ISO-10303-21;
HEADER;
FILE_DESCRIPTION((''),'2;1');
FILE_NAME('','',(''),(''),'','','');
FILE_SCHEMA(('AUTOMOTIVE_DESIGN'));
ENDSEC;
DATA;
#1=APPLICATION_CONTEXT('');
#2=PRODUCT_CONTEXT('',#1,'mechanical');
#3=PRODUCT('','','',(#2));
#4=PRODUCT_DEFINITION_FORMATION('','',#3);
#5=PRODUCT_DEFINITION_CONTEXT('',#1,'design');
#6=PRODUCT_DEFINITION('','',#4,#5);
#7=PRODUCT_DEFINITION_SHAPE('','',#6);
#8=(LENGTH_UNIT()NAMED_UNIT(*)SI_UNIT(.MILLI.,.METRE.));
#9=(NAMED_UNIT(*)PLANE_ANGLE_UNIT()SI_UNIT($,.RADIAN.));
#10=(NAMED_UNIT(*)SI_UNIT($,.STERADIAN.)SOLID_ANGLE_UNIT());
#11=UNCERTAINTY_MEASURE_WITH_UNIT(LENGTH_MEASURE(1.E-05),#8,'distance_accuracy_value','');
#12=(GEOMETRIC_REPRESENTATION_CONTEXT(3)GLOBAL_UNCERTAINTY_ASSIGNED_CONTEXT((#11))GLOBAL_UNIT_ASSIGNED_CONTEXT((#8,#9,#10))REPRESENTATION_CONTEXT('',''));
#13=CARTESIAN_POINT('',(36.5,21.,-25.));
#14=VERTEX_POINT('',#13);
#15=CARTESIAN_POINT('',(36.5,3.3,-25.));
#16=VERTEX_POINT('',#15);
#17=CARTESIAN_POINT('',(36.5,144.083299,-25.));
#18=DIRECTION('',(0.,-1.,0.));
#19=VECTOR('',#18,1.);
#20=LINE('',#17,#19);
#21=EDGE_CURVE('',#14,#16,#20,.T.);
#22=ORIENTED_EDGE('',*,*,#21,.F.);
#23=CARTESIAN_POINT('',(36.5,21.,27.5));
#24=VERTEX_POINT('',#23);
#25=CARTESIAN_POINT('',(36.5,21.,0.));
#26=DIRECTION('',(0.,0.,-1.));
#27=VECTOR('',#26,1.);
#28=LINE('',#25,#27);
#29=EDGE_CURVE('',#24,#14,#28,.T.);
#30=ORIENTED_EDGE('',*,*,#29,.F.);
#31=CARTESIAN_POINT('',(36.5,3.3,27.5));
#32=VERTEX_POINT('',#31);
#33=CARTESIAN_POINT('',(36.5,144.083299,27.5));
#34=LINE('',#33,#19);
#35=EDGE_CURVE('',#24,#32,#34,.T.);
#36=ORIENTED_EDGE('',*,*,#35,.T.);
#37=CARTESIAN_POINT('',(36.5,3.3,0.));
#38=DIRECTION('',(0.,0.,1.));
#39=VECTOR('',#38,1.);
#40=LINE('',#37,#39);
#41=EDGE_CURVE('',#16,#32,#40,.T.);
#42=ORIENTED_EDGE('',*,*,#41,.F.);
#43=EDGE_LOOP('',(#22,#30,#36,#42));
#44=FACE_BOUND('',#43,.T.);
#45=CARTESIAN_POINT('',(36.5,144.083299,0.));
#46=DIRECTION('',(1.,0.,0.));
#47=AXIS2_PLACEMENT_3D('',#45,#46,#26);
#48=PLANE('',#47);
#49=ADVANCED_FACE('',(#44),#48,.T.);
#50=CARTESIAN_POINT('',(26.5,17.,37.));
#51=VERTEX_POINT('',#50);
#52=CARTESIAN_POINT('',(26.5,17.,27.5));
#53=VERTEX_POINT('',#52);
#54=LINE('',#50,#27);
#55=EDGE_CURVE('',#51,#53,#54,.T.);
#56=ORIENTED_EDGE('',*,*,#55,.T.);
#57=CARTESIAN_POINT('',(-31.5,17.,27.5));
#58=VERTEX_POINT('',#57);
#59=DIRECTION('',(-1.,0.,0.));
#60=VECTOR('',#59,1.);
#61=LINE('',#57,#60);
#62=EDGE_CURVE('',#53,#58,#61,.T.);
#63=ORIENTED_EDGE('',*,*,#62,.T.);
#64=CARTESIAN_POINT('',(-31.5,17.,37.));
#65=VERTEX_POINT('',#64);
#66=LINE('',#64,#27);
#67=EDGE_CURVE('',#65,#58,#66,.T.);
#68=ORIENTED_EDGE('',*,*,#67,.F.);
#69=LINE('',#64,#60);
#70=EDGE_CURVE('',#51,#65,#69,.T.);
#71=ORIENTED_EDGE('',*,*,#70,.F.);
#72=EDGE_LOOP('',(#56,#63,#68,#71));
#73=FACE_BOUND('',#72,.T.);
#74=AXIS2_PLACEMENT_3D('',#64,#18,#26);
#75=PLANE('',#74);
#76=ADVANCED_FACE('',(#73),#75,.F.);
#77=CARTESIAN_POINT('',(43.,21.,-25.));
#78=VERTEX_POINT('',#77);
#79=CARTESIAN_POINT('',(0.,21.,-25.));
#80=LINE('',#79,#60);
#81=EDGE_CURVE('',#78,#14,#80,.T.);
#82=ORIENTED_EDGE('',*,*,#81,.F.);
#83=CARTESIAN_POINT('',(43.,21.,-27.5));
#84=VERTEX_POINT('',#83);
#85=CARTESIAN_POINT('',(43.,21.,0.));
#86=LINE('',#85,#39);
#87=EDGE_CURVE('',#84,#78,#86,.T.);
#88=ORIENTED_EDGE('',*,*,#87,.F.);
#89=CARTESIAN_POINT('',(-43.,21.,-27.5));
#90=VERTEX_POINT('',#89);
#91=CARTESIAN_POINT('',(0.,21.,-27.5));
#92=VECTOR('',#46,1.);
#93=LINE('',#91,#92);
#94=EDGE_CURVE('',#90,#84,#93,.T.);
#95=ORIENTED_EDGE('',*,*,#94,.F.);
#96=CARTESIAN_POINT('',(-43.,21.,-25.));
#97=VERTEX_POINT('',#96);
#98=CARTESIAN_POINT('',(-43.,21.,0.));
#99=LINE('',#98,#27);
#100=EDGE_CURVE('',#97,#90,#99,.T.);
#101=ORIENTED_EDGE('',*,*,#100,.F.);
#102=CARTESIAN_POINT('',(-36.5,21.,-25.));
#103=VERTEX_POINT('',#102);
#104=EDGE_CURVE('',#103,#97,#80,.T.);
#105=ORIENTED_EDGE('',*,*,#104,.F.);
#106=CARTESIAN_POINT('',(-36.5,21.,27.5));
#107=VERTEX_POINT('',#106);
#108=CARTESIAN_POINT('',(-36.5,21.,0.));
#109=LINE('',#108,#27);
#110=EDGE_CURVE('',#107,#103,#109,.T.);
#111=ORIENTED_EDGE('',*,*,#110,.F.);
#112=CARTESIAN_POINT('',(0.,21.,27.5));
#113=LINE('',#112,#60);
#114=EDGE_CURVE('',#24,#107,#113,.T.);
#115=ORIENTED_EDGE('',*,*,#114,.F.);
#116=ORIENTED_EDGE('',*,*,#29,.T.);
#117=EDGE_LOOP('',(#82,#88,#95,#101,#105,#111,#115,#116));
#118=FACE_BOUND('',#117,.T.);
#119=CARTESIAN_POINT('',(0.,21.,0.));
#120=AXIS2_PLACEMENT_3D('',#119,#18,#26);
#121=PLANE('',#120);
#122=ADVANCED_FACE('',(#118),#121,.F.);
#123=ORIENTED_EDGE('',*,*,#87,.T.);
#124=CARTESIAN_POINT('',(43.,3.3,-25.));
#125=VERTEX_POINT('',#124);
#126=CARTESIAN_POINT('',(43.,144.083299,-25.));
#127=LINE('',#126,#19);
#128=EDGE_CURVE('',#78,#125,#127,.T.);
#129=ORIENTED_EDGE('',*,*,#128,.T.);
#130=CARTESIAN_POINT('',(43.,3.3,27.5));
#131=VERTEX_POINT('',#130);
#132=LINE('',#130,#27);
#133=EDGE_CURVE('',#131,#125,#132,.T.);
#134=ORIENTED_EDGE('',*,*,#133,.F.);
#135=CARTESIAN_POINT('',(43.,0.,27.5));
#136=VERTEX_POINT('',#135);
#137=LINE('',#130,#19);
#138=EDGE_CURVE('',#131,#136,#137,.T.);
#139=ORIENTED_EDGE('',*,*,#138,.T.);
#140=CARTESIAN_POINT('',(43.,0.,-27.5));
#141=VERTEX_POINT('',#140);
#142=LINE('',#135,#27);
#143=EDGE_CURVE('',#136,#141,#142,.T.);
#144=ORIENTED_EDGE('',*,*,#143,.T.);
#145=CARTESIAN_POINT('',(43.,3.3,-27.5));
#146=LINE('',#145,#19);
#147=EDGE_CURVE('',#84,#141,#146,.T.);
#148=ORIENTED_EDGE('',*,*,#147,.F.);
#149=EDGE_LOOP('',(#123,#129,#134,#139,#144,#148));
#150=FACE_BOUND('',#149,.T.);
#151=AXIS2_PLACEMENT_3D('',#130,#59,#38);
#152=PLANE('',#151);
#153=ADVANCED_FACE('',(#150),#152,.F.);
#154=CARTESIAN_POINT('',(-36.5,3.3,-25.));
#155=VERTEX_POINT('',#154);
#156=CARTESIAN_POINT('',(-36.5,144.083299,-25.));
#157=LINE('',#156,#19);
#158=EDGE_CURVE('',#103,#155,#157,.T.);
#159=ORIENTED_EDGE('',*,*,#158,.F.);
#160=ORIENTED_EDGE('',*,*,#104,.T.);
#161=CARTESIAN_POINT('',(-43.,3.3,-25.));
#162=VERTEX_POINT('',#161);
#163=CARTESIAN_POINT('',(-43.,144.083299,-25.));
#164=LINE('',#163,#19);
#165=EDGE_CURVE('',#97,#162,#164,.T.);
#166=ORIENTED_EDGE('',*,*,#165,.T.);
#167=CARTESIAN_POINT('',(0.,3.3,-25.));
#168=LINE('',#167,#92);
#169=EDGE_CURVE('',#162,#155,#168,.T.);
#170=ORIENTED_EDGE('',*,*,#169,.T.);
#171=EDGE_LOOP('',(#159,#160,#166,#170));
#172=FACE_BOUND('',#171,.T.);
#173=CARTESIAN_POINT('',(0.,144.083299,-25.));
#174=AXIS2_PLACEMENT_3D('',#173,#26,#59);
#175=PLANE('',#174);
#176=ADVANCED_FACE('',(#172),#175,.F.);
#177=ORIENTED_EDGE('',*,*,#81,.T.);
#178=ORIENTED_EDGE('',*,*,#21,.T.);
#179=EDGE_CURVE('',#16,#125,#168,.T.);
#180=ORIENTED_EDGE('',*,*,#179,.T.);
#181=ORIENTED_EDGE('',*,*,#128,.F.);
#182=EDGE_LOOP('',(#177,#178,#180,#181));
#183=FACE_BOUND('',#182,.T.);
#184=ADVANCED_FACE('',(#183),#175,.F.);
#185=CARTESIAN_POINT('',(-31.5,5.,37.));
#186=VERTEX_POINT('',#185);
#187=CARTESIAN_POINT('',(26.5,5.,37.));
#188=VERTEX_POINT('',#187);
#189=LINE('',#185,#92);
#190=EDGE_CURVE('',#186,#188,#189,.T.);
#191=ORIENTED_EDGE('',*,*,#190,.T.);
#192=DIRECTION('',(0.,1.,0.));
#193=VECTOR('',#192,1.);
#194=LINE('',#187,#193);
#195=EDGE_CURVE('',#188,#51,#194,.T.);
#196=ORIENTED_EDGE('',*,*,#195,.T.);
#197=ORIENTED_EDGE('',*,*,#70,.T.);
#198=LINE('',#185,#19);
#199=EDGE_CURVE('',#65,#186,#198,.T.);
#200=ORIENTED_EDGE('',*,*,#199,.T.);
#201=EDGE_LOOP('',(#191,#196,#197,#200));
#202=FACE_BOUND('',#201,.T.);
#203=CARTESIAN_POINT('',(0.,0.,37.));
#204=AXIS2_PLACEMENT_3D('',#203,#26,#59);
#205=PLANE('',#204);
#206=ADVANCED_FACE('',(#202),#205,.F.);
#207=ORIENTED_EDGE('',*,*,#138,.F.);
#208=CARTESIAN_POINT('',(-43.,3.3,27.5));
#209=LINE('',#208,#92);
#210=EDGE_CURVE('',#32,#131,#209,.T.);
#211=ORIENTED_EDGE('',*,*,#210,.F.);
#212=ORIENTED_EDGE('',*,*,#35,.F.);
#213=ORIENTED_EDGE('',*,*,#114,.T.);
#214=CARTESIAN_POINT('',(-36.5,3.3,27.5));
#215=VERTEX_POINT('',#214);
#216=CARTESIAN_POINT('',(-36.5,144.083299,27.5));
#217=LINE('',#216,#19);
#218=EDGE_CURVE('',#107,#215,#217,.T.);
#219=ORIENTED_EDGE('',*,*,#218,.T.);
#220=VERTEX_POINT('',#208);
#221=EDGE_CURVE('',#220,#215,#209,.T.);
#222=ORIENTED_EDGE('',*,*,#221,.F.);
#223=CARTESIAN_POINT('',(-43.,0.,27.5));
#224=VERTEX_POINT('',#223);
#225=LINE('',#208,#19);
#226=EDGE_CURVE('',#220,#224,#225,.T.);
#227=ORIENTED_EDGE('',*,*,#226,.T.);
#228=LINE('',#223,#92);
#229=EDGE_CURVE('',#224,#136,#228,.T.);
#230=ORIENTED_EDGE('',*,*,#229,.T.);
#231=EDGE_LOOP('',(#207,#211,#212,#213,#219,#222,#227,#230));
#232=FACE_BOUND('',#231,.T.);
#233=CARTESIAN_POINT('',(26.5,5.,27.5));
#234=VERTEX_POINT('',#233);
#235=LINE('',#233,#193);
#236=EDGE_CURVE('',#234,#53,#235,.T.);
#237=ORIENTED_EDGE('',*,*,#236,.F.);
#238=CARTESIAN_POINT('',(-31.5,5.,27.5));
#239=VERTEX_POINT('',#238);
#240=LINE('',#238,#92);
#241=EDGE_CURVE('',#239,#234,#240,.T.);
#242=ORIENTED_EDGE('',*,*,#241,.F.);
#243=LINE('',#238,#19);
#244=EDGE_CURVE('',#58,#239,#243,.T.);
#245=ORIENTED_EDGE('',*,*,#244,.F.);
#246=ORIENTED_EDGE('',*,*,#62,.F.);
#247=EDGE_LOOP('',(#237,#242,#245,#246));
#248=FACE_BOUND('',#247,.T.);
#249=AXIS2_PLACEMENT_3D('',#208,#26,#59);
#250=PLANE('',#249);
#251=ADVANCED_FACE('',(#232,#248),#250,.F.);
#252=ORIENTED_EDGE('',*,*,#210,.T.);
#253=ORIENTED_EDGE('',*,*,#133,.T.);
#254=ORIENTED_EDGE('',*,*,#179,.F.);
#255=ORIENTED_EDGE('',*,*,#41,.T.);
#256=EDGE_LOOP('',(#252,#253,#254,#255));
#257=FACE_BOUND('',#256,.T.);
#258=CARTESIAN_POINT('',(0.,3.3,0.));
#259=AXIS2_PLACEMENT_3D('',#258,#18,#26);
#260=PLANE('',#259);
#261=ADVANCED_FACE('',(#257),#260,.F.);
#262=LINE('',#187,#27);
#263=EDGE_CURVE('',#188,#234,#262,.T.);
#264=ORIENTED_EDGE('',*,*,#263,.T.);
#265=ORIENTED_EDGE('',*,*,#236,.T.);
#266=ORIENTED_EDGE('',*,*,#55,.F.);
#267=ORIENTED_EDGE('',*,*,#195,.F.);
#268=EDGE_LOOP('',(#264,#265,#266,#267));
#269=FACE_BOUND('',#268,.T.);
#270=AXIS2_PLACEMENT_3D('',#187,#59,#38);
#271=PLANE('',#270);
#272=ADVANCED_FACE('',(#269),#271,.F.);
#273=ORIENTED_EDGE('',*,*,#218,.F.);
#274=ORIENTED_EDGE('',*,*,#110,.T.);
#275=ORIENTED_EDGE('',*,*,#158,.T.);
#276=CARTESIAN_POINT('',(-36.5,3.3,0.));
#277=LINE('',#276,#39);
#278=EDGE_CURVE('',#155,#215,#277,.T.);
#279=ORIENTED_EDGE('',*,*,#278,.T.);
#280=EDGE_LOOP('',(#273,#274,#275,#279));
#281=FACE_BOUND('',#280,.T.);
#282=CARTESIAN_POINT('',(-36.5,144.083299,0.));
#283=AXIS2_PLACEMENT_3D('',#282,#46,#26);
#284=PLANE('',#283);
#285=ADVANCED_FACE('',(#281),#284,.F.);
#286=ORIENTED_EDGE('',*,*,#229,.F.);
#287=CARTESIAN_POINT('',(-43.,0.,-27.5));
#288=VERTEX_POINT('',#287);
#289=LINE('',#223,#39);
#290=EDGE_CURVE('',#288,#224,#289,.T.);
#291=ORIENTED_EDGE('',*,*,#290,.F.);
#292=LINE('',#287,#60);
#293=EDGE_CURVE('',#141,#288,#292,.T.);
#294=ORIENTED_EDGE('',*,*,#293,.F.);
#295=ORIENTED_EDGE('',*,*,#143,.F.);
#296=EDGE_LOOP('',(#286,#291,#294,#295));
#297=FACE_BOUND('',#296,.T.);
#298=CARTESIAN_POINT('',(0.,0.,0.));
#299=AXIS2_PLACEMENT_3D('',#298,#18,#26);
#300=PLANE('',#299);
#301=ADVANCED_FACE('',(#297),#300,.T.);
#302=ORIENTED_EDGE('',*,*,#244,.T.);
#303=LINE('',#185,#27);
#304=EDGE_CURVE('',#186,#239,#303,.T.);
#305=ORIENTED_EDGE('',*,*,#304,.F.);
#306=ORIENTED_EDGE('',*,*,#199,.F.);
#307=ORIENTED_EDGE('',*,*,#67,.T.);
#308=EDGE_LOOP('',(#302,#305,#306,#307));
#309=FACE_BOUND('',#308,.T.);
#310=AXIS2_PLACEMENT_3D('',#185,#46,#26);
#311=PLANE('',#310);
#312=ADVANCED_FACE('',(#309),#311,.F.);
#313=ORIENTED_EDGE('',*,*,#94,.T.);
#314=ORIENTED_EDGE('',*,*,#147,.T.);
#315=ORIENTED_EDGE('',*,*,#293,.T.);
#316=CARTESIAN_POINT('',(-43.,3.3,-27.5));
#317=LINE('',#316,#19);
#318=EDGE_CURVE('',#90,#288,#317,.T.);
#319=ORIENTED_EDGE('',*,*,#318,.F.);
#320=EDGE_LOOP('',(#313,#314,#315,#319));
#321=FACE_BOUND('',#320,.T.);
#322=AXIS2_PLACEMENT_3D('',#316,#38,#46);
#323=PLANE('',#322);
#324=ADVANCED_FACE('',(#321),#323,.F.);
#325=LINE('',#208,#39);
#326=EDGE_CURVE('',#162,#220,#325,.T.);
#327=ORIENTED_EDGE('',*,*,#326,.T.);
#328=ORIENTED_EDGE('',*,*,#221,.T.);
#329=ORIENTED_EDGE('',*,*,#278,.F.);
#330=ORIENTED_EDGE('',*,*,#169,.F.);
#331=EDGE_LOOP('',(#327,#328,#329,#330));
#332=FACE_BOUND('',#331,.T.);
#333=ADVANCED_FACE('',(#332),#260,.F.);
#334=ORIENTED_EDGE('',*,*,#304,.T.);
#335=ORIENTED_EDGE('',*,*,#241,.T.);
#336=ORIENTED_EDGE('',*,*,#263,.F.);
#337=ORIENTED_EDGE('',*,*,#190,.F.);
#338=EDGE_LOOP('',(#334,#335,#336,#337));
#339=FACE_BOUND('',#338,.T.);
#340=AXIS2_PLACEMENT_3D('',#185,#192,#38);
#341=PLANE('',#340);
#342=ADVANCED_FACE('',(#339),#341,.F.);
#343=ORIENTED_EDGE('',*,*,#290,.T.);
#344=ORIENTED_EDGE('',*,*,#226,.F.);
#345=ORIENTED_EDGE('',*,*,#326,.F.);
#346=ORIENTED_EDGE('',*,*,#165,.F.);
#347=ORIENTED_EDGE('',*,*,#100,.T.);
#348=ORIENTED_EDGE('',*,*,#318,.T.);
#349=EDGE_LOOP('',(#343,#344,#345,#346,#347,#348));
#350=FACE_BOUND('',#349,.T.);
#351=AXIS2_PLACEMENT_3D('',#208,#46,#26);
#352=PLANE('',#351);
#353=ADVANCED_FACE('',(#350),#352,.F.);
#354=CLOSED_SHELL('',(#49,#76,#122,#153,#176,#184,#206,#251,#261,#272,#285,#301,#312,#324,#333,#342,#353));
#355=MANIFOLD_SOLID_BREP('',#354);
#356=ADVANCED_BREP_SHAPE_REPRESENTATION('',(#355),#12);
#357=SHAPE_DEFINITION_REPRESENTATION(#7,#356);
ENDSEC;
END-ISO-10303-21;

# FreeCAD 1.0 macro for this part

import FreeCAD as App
import Part
import Sketcher

V = App.Vector


def add_polygon(sketch, points):
    """Adds a closed chain of lines whose ends are joined by coincident constraints."""
    first, n = sketch.GeometryCount, len(points)
    for a, b in zip(points, points[1:] + points[:1]):
        sketch.addGeometry(Part.LineSegment(App.Vector(*a, 0), App.Vector(*b, 0)), False)
    for i in range(n):
        sketch.addConstraint(Sketcher.Constraint("Coincident", first + i, 2, first + (i + 1) % n, 1))

doc = App.newDocument("Part")
body = doc.addObject("PartDesign::Body", "Body")

# Sketch on XZ plane
sketch1 = body.newObject("Sketcher::SketchObject", "Sketch")
sketch1.AttachmentSupport = (doc.getObject("XZ_Plane"), [""])
sketch1.MapMode = "FlatFace"
add_polygon(sketch1, [(-43, -27.5), (-43, 27.5), (43, 27.5), (43, -27.5)])  # lines 0-3
sketch1.addConstraint(Sketcher.Constraint("Vertical", 0))
sketch1.addConstraint(Sketcher.Constraint("Horizontal", 1))
sketch1.addConstraint(Sketcher.Constraint("Vertical", 2))
sketch1.addConstraint(Sketcher.Constraint("Horizontal", 3))
sketch1.addConstraint(Sketcher.Constraint("Symmetric", 0, 2, 2, 2, -1, 1))
sketch1.addConstraint(Sketcher.Constraint("DistanceX", 1, 1, 1, 2, 86.0))
sketch1.addConstraint(Sketcher.Constraint("DistanceY", 0, 1, 0, 2, 55.0))
pad1 = body.newObject("PartDesign::Pad", "Pad")
pad1.Profile = sketch1
pad1.Length = 3.3
pad1.Reversed = True

# Sketch on XZ plane
sketch2 = body.newObject("Sketcher::SketchObject", "Sketch001")
sketch2.AttachmentSupport = (doc.getObject("XZ_Plane"), [""])
sketch2.MapMode = "FlatFace"
sketch2.AttachmentOffset = App.Placement(V(0, 0, -3.3), App.Rotation())
add_polygon(sketch2, [(43, -27.5), (-43, -27.5), (-43, -25), (-36.5, -25), (-36.5, 27.5), (36.5, 27.5), (36.5, -25), (43, -25)])  # lines 0-7
sketch2.addConstraint(Sketcher.Constraint("Horizontal", 0))
sketch2.addConstraint(Sketcher.Constraint("Vertical", 1))
sketch2.addConstraint(Sketcher.Constraint("Horizontal", 2))
sketch2.addConstraint(Sketcher.Constraint("Vertical", 3))
sketch2.addConstraint(Sketcher.Constraint("Horizontal", 4))
sketch2.addConstraint(Sketcher.Constraint("Vertical", 5))
sketch2.addConstraint(Sketcher.Constraint("Horizontal", 6))
sketch2.addConstraint(Sketcher.Constraint("Vertical", 7))
sketch2.addConstraint(Sketcher.Constraint("Symmetric", 2, 2, 5, 2, -2))
sketch2.addConstraint(Sketcher.Constraint("Equal", 2, 6))
sketch2.addConstraint(Sketcher.Constraint("DistanceX", 0, 2, 0, 1, 86.0))
sketch2.addConstraint(Sketcher.Constraint("DistanceX", 4, 1, 4, 2, 73.0))
sketch2.addConstraint(Sketcher.Constraint("DistanceY", 1, 1, 1, 2, 2.5))
sketch2.addConstraint(Sketcher.Constraint("DistanceY", 3, 1, 3, 2, 52.5))
sketch2.addConstraint(Sketcher.Constraint("DistanceY", 1, 2, -1, 1, 25.0))
pad2 = body.newObject("PartDesign::Pad", "Pad001")
pad2.Profile = sketch2
pad2.Length = 17.7
pad2.Reversed = True

# Sketch on XY plane
sketch3 = body.newObject("Sketcher::SketchObject", "Sketch002")
sketch3.AttachmentSupport = (doc.getObject("XY_Plane"), [""])
sketch3.MapMode = "FlatFace"
sketch3.AttachmentOffset = App.Placement(V(0, 0, 27.5), App.Rotation())
add_polygon(sketch3, [(-31.5, 17), (-31.5, 5), (26.5, 5), (26.5, 17)])  # lines 0-3
sketch3.addConstraint(Sketcher.Constraint("Vertical", 0))
sketch3.addConstraint(Sketcher.Constraint("Horizontal", 1))
sketch3.addConstraint(Sketcher.Constraint("Vertical", 2))
sketch3.addConstraint(Sketcher.Constraint("Horizontal", 3))
sketch3.addConstraint(Sketcher.Constraint("DistanceX", 1, 1, 1, 2, 58.0))
sketch3.addConstraint(Sketcher.Constraint("DistanceY", 0, 2, 0, 1, 12.0))
sketch3.addConstraint(Sketcher.Constraint("DistanceY", -1, 1, 0, 2, 5.0))
sketch3.addConstraint(Sketcher.Constraint("DistanceX", 0, 2, -1, 1, 31.5))
pad3 = body.newObject("PartDesign::Pad", "Pad002")
pad3.Profile = sketch3
pad3.Length = 9.5

doc.recompute()
